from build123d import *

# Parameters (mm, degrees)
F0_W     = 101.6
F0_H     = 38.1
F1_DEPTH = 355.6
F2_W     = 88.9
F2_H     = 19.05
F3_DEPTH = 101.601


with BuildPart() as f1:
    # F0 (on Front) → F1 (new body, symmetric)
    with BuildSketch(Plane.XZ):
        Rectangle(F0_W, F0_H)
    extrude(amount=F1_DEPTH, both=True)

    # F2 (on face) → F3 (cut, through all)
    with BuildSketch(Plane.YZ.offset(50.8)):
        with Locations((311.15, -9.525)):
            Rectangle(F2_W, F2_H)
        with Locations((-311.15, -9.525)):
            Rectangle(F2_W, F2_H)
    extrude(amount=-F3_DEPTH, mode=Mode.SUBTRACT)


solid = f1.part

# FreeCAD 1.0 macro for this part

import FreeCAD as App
import Part
import Sketcher
from FreeCAD import Vector
Q = App.Units.Quantity


def add_polygon(sketch, points):
    """Adds a closed chain of lines whose ends are joined by coincident constraints."""
    first, n = sketch.GeometryCount, len(points)
    for a, b in zip(points, points[1:] + points[:1]):
        sketch.addGeometry(Part.LineSegment(App.Vector(*a, 0), App.Vector(*b, 0)), False)
    for i in range(n):
        sketch.addConstraint(Sketcher.Constraint("Coincident", first + i, 2, first + (i + 1) % n, 1))

doc = App.newDocument("Part")
body = doc.addObject("PartDesign::Body", "Body")

# Sketch on XZ plane
sketch1 = doc.addObject("Sketcher::SketchObject", "Sketch")
body.addObject(sketch1)
sketch1.AttachmentSupport = (doc.XZ_Plane, [""])
sketch1.MapMode = "FlatFace"
add_polygon(sketch1, [(-51, 19), (-51, -19), (51, -19), (51, 19)])  # lines 0-3
sketch1.addConstraint([
    Sketcher.Constraint("Vertical", 0),
    Sketcher.Constraint("Horizontal", 1),
    Sketcher.Constraint("Vertical", 2),
    Sketcher.Constraint("Horizontal", 3),
    Sketcher.Constraint("Symmetric", 0, 2, 2, 2, -1, 1),
    Sketcher.Constraint("DistanceX", 1, 1, 1, 2, Q("4 in")),
    Sketcher.Constraint("DistanceY", 0, 2, 0, 1, Q("1.5 in")),
])
pad1 = doc.addObject("PartDesign::Pad", "Pad")
body.addObject(pad1)
pad1.Profile = sketch1
pad1.Length = Q("28 in")
pad1.Midplane = True

# Sketch on YZ plane
sketch2 = doc.addObject("Sketcher::SketchObject", "Sketch001")
body.addObject(sketch2)
sketch2.AttachmentSupport = (doc.YZ_Plane, [""])
sketch2.MapMode = "FlatFace"
sketch2.AttachmentOffset = App.Placement(Vector(0, 0, 2 * 25.4), App.Rotation())
add_polygon(sketch2, [(267, 0), (267, -19), (356, -19), (356, 0)])  # lines 0-3
add_polygon(sketch2, [(-356, 0), (-356, -19), (-267, -19), (-267, 0)])  # lines 4-7
sketch2.addConstraint([
    Sketcher.Constraint("Vertical", 0),
    Sketcher.Constraint("Horizontal", 1),
    Sketcher.Constraint("Vertical", 2),
    Sketcher.Constraint("Horizontal", 3),
    Sketcher.Constraint("Vertical", 4),
    Sketcher.Constraint("Horizontal", 5),
    Sketcher.Constraint("Vertical", 6),
    Sketcher.Constraint("Horizontal", 7),
    Sketcher.Constraint("Symmetric", 3, 2, 6, 2, -1, 1),
    Sketcher.Constraint("Symmetric", 1, 2, 4, 2, -2),
    Sketcher.Constraint("PointOnObject", 2, 2, -1),
    Sketcher.Constraint("DistanceX", 1, 1, 1, 2, Q("3.5 in")),
    Sketcher.Constraint("DistanceX", -1, 1, 1, 2, Q("14 in")),
    Sketcher.Constraint("DistanceY", 0, 2, 0, 1, Q("0.75 in")),
])
pocket1 = doc.addObject("PartDesign::Pocket", "Pocket")
body.addObject(pocket1)
pocket1.Profile = sketch2
pocket1.Type = "ThroughAll"

doc.recompute()
